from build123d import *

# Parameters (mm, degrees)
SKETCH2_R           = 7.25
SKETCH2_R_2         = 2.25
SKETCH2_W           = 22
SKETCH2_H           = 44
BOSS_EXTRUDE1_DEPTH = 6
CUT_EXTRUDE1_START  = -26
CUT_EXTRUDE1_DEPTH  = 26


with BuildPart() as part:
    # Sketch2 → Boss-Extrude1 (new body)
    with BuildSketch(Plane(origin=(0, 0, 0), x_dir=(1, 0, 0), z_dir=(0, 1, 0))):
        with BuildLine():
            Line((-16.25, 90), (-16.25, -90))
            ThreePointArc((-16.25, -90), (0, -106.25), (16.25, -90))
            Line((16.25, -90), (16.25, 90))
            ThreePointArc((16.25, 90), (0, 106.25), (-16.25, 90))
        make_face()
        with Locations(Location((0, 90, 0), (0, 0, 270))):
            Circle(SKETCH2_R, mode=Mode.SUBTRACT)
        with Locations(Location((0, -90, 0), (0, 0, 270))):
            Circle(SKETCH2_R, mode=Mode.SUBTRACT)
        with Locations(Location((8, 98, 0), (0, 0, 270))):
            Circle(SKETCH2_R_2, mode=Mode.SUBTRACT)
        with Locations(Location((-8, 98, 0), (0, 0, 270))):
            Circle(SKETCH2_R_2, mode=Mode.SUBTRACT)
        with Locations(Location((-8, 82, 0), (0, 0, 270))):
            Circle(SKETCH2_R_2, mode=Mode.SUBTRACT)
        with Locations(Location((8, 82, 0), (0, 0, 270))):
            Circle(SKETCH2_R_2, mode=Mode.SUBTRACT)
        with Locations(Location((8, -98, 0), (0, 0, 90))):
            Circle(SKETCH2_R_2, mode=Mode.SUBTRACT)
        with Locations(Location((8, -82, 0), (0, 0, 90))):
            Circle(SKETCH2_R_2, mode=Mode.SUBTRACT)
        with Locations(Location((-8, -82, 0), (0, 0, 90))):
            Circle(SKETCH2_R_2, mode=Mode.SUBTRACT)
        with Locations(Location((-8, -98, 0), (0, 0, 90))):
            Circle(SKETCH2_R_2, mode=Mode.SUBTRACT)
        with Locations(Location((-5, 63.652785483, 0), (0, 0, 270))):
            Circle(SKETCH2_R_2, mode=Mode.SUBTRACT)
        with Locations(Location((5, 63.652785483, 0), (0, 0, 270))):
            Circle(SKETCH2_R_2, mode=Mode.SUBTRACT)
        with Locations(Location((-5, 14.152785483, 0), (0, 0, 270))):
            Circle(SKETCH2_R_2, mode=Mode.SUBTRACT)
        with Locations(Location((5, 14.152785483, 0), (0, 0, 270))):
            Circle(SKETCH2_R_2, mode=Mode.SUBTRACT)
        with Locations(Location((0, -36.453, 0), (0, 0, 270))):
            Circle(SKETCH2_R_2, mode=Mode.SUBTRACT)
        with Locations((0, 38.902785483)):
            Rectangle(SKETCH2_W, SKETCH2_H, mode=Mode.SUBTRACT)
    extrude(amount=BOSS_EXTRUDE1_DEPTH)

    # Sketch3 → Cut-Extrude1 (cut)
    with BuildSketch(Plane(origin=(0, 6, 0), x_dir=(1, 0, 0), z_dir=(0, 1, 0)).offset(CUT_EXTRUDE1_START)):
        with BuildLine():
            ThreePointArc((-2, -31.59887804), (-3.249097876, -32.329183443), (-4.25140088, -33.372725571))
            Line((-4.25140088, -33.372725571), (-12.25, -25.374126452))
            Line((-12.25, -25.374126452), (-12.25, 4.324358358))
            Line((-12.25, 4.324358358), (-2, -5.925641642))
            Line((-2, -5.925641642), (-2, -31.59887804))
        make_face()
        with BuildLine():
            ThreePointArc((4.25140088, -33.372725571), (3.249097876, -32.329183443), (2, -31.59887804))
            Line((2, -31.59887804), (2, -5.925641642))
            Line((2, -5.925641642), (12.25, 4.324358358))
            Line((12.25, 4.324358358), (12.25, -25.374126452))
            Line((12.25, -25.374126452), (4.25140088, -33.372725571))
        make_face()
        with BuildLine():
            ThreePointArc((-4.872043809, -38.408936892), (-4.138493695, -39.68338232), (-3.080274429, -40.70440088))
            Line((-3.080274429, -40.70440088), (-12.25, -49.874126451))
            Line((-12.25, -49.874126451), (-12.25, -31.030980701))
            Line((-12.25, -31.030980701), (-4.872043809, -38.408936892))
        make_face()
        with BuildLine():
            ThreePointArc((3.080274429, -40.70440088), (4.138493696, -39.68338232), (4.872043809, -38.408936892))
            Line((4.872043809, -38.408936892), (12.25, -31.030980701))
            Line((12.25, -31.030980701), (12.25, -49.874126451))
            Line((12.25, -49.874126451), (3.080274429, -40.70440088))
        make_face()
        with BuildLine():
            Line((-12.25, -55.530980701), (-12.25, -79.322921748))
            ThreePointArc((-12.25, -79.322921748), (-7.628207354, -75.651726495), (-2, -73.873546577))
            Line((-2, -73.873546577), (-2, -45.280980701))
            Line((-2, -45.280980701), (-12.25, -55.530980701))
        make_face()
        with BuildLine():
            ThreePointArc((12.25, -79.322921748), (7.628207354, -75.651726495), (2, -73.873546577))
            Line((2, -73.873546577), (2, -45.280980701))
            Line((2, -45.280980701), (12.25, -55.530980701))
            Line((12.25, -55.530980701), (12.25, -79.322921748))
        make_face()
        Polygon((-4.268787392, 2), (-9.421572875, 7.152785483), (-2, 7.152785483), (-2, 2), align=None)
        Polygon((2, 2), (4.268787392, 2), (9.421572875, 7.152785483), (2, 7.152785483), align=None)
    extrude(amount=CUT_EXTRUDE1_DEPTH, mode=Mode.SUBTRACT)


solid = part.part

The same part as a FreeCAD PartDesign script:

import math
import FreeCAD as App
import Part
import Sketcher

V = App.Vector
Q = App.Units.Quantity


def add_polygon(sketch, points):
    """Adds a closed chain of lines whose ends are joined by coincident constraints."""
    first, n = sketch.GeometryCount, len(points)
    for a, b in zip(points, points[1:] + points[:1]):
        sketch.addGeometry(Part.LineSegment(App.Vector(*a, 0), App.Vector(*b, 0)), False)
    for i in range(n):
        sketch.addConstraint(Sketcher.Constraint("Coincident", first + i, 2, first + (i + 1) % n, 1))

doc = App.newDocument("Part")
params = doc.addObject("Spreadsheet::Sheet", "Params")
for row, (alias, value) in enumerate([
    ("sketch1_diameter", "4.5 mm"),
    ("sketch1_diameter2", "14.5 mm"),
    ("sketch1_width", "22 mm"),
    ("sketch1_height", "180 mm"),
    ("sketch1_height2", "44 mm"),
    ("pad1_length", "6 mm"),
    ("sketch2_radius", "5.25 mm"),
    ("sketch2_radius2", "16.25 mm"),
    ("pocket1_length", "26 mm"),
], start=1):
    params.set(f"A{row}", alias)
    params.set(f"B{row}", "=" + value)
    params.setAlias(f"B{row}", alias)

body = doc.addObject("PartDesign::Body", "Body")

# Sketch on XZ plane
sketch1 = body.newObject("Sketcher::SketchObject", "Sketch")
sketch1.AttachmentSupport = (doc.getObject("XZ_Plane"), [""])
sketch1.MapMode = "FlatFace"
sketch1.addGeometry(Part.LineSegment(V(-16.2, -90, 0), V(-16.2, 90, 0)), False)  # 0
sketch1.addGeometry(Part.ArcOfCircle(Part.Circle(V(0, 90, 0), V(0, 0, 1), 16.2), math.radians(0), math.radians(180)), False)  # 1
sketch1.addGeometry(Part.LineSegment(V(16.2, 90, 0), V(16.2, -90, 0)), False)  # 2
sketch1.addGeometry(Part.ArcOfCircle(Part.Circle(V(0, -90, 0), V(0, 0, 1), 16.2), math.radians(180), math.radians(360)), False)  # 3
sketch1.addGeometry(Part.Circle(V(-8, 98, 0), V(0, 0, 1), 2.2), False)  # 4
sketch1.addGeometry(Part.Circle(V(-8, 82, 0), V(0, 0, 1), 2.2), False)  # 5
sketch1.addGeometry(Part.Circle(V(0, 90, 0), V(0, 0, 1), 7.2), False)  # 6
sketch1.addGeometry(Part.Circle(V(8, 98, 0), V(0, 0, 1), 2.2), False)  # 7
sketch1.addGeometry(Part.Circle(V(8, 82, 0), V(0, 0, 1), 2.2), False)  # 8
sketch1.addGeometry(Part.Circle(V(0, 36.5, 0), V(0, 0, 1), 2.2), False)  # 9
sketch1.addGeometry(Part.Circle(V(-5, -14.2, 0), V(0, 0, 1), 2.2), False)  # 10
sketch1.addGeometry(Part.Circle(V(-8, -82, 0), V(0, 0, 1), 2.2), False)  # 11
sketch1.addGeometry(Part.Circle(V(-8, -98, 0), V(0, 0, 1), 2.2), False)  # 12
sketch1.addGeometry(Part.Circle(V(-5, -63.7, 0), V(0, 0, 1), 2.2), False)  # 13
sketch1.addGeometry(Part.Circle(V(5, -14.2, 0), V(0, 0, 1), 2.2), False)  # 14
add_polygon(sketch1, [(11, -16.9), (-11, -16.9), (-11, -60.9), (11, -60.9)])  # lines 15-18
sketch1.addGeometry(Part.Circle(V(5, -63.7, 0), V(0, 0, 1), 2.2), False)  # 19
sketch1.addGeometry(Part.Circle(V(0, -90, 0), V(0, 0, 1), 7.2), False)  # 20
sketch1.addGeometry(Part.Circle(V(8, -82, 0), V(0, 0, 1), 2.2), False)  # 21
sketch1.addGeometry(Part.Circle(V(8, -98, 0), V(0, 0, 1), 2.2), False)  # 22
sketch1.addConstraint(Sketcher.Constraint("Tangent", 0, 2, 1, 2))
sketch1.addConstraint(Sketcher.Constraint("Tangent", 1, 1, 2, 1))
sketch1.addConstraint(Sketcher.Constraint("Tangent", 2, 2, 3, 2))
sketch1.addConstraint(Sketcher.Constraint("Tangent", 3, 1, 0, 1))
sketch1.addConstraint(Sketcher.Constraint("Vertical", 0))
sketch1.addConstraint(Sketcher.Constraint("Vertical", 2))
sketch1.addConstraint(Sketcher.Constraint("Horizontal", 15))
sketch1.addConstraint(Sketcher.Constraint("Vertical", 16))
sketch1.addConstraint(Sketcher.Constraint("Horizontal", 17))
sketch1.addConstraint(Sketcher.Constraint("Vertical", 18))
sketch1.addConstraint(Sketcher.Constraint("Coincident", 6, 3, 1, 3))
sketch1.addConstraint(Sketcher.Constraint("Coincident", 20, 3, 3, 3))
sketch1.addConstraint(Sketcher.Constraint("Equal", 4, 5))
sketch1.addConstraint(Sketcher.Constraint("Equal", 5, 7))
sketch1.addConstraint(Sketcher.Constraint("Equal", 7, 8))
sketch1.addConstraint(Sketcher.Constraint("Equal", 8, 9))
sketch1.addConstraint(Sketcher.Constraint("Equal", 9, 10))
sketch1.addConstraint(Sketcher.Constraint("Equal", 10, 11))
sketch1.addConstraint(Sketcher.Constraint("Equal", 11, 12))
sketch1.addConstraint(Sketcher.Constraint("Equal", 12, 13))
sketch1.addConstraint(Sketcher.Constraint("Equal", 13, 14))
sketch1.addConstraint(Sketcher.Constraint("Equal", 14, 19))
sketch1.addConstraint(Sketcher.Constraint("Equal", 6, 20))
sketch1.addConstraint(Sketcher.Constraint("Equal", 19, 21))
sketch1.addConstraint(Sketcher.Constraint("Equal", 21, 22))
sketch1.addConstraint(Sketcher.Constraint("Symmetric", 1, 3, 3, 3, -1, 1))
sketch1.addConstraint(Sketcher.Constraint("Symmetric", 8, 3, 11, 3, -1, 1))
sketch1.addConstraint(Sketcher.Constraint("Symmetric", 7, 3, 12, 3, -1, 1))
sketch1.addConstraint(Sketcher.Constraint("Symmetric", 5, 3, 21, 3, -1, 1))
sketch1.addConstraint(Sketcher.Constraint("Symmetric", 4, 3, 22, 3, -1, 1))
sketch1.addConstraint(Sketcher.Constraint("Symmetric", 4, 3, 7, 3, -2))
sketch1.addConstraint(Sketcher.Constraint("Symmetric", 5, 3, 8, 3, -2))
sketch1.addConstraint(Sketcher.Constraint("Symmetric", 10, 3, 14, 3, -2))
sketch1.addConstraint(Sketcher.Constraint("Symmetric", 13, 3, 19, 3, -2))
sketch1.addConstraint(Sketcher.Constraint("PointOnObject", 9, 3, -2))
sketch1.addConstraint(Sketcher.Constraint("Vertical", 4, 3, 5, 3))
sketch1.addConstraint(Sketcher.Constraint("Vertical", 10, 3, 13, 3))
sketch1.addConstraint(Sketcher.Constraint("Diameter", 4, Q("4.5 mm")))
sketch1.addConstraint(Sketcher.Constraint("Diameter", 6, Q("14.5 mm")))
sketch1.addConstraint(Sketcher.Constraint("DistanceX", 15, 2, 15, 1, Q("22 mm")))
sketch1.addConstraint(Sketcher.Constraint("DistanceY", 0, 1, 0, 2, Q("180 mm")))
sketch1.addConstraint(Sketcher.Constraint("DistanceY", 16, 2, 16, 1, Q("44 mm")))
sketch1.addConstraint(Sketcher.Constraint("Radius", 1, Q("16.25 mm")))
sketch1.addConstraint(Sketcher.Constraint("DistanceX", 4, 3, -1, 1, Q("8 mm")))
sketch1.addConstraint(Sketcher.Constraint("DistanceY", -1, 1, 4, 3, Q("98 mm")))
sketch1.addConstraint(Sketcher.Constraint("DistanceY", -1, 1, 5, 3, Q("82 mm")))
sketch1.addConstraint(Sketcher.Constraint("DistanceX", 10, 3, -1, 1, Q("5 mm")))
sketch1.addConstraint(Sketcher.Constraint("DistanceX", 15, 2, -1, 1, Q("11 mm")))
sketch1.addConstraint(Sketcher.Constraint("DistanceY", 13, 3, 10, 3, Q("49.5 mm")))
sketch1.addConstraint(Sketcher.Constraint("DistanceY", 15, 2, 10, 3, Q("2.75 mm")))
sketch1.addConstraint(Sketcher.Constraint("DistanceY", -1, 1, 9, 3, Q("36.453 mm")))
sketch1.addConstraint(Sketcher.Constraint("DistanceY", 10, 3, -1, 1, Q("14.152785 mm")))
sketch1.setExpression("Constraints[41]", "Params.sketch1_diameter")
sketch1.setExpression("Constraints[42]", "Params.sketch1_diameter2")
sketch1.setExpression("Constraints[43]", "Params.sketch1_width")
sketch1.setExpression("Constraints[44]", "Params.sketch1_height")
sketch1.setExpression("Constraints[45]", "Params.sketch1_height2")
pad1 = body.newObject("PartDesign::Pad", "Pad")
pad1.Profile = sketch1
pad1.setExpression("Length", "Params.pad1_length")
pad1.Reversed = True

# Sketch on XZ plane
sketch2 = body.newObject("Sketcher::SketchObject", "Sketch001")
sketch2.AttachmentSupport = (doc.getObject("XZ_Plane"), [""])
sketch2.MapMode = "FlatFace"
sketch2.AttachmentOffset = App.Placement(V(0, 0, 20), App.Rotation())
sketch2.addGeometry(Part.ArcOfCircle(Part.Circle(V(0, 36.5, 0), V(0, 0, 1), 5.2), math.radians(-144), math.radians(-112)), False)  # 0
sketch2.addGeometry(Part.LineSegment(V(-2, 31.6, 0), V(-2, 5.9, 0)), False)  # 1
sketch2.addGeometry(Part.LineSegment(V(-2, 5.9, 0), V(-12.2, -4.3, 0)), False)  # 2
sketch2.addGeometry(Part.LineSegment(V(-12.2, -4.3, 0), V(-12.2, 25.4, 0)), False)  # 3
sketch2.addGeometry(Part.LineSegment(V(-12.2, 25.4, 0), V(-4.3, 33.4, 0)), False)  # 4
sketch2.addGeometry(Part.ArcOfCircle(Part.Circle(V(0, 36.5, 0), V(0, 0, 1), 5.2), math.radians(-68), math.radians(-36)), False)  # 5
sketch2.addGeometry(Part.LineSegment(V(4.3, 33.4, 0), V(12.2, 25.4, 0)), False)  # 6
sketch2.addGeometry(Part.LineSegment(V(12.2, 25.4, 0), V(12.2, -4.3, 0)), False)  # 7
sketch2.addGeometry(Part.LineSegment(V(12.2, -4.3, 0), V(2, 5.9, 0)), False)  # 8
sketch2.addGeometry(Part.LineSegment(V(2, 5.9, 0), V(2, 31.6, 0)), False)  # 9
sketch2.addGeometry(Part.ArcOfCircle(Part.Circle(V(0, 36.5, 0), V(0, 0, 1), 5.3), math.radians(126), math.radians(158)), False)  # 10
sketch2.addGeometry(Part.LineSegment(V(-4.9, 38.4, 0), V(-12.2, 31, 0)), False)  # 11
sketch2.addGeometry(Part.LineSegment(V(-12.2, 31, 0), V(-12.2, 49.9, 0)), False)  # 12
sketch2.addGeometry(Part.LineSegment(V(-12.2, 49.9, 0), V(-3.1, 40.7, 0)), False)  # 13
sketch2.addGeometry(Part.ArcOfCircle(Part.Circle(V(0, 36.5, 0), V(0, 0, 1), 5.2), math.radians(22), math.radians(54)), False)  # 14
sketch2.addGeometry(Part.LineSegment(V(3.1, 40.7, 0), V(12.2, 49.9, 0)), False)  # 15
sketch2.addGeometry(Part.LineSegment(V(12.2, 49.9, 0), V(12.2, 31, 0)), False)  # 16
sketch2.addGeometry(Part.LineSegment(V(12.2, 31, 0), V(4.9, 38.4, 0)), False)  # 17
sketch2.addGeometry(Part.LineSegment(V(-12.2, 55.5, 0), V(-12.2, 79.3, 0)), False)  # 18
sketch2.addGeometry(Part.ArcOfCircle(Part.Circle(V(0, 90, 0), V(0, 0, 1), 16.2), math.radians(-139), math.radians(-97)), False)  # 19
sketch2.addGeometry(Part.LineSegment(V(-2, 73.9, 0), V(-2, 45.3, 0)), False)  # 20
sketch2.addGeometry(Part.LineSegment(V(-2, 45.3, 0), V(-12.2, 55.5, 0)), False)  # 21
sketch2.addGeometry(Part.ArcOfCircle(Part.Circle(V(0, 90, 0), V(0, 0, 1), 16.2), math.radians(-83), math.radians(-41)), False)  # 22
sketch2.addGeometry(Part.LineSegment(V(12.2, 79.3, 0), V(12.2, 55.5, 0)), False)  # 23
sketch2.addGeometry(Part.LineSegment(V(12.2, 55.5, 0), V(2, 45.3, 0)), False)  # 24
sketch2.addGeometry(Part.LineSegment(V(2, 45.3, 0), V(2, 73.9, 0)), False)  # 25
add_polygon(sketch2, [(-9.4, -7.2), (-4.3, -2), (-2, -2), (-2, -7.2)])  # lines 26-29
add_polygon(sketch2, [(2, -2), (4.3, -2), (9.4, -7.2), (2, -7.2)])  # lines 30-33
sketch2.addConstraint(Sketcher.Constraint("Coincident", 0, 2, 1, 1))
sketch2.addConstraint(Sketcher.Constraint("Coincident", 1, 2, 2, 1))
sketch2.addConstraint(Sketcher.Constraint("Coincident", 2, 2, 3, 1))
sketch2.addConstraint(Sketcher.Constraint("Coincident", 3, 2, 4, 1))
sketch2.addConstraint(Sketcher.Constraint("Coincident", 4, 2, 0, 1))
sketch2.addConstraint(Sketcher.Constraint("Coincident", 5, 2, 6, 1))
sketch2.addConstraint(Sketcher.Constraint("Coincident", 6, 2, 7, 1))
sketch2.addConstraint(Sketcher.Constraint("Coincident", 7, 2, 8, 1))
sketch2.addConstraint(Sketcher.Constraint("Coincident", 8, 2, 9, 1))
sketch2.addConstraint(Sketcher.Constraint("Coincident", 9, 2, 5, 1))
sketch2.addConstraint(Sketcher.Constraint("Coincident", 10, 2, 11, 1))
sketch2.addConstraint(Sketcher.Constraint("Coincident", 11, 2, 12, 1))
sketch2.addConstraint(Sketcher.Constraint("Coincident", 12, 2, 13, 1))
sketch2.addConstraint(Sketcher.Constraint("Coincident", 13, 2, 10, 1))
sketch2.addConstraint(Sketcher.Constraint("Coincident", 14, 2, 15, 1))
sketch2.addConstraint(Sketcher.Constraint("Coincident", 15, 2, 16, 1))
sketch2.addConstraint(Sketcher.Constraint("Coincident", 16, 2, 17, 1))
sketch2.addConstraint(Sketcher.Constraint("Coincident", 17, 2, 14, 1))
sketch2.addConstraint(Sketcher.Constraint("Coincident", 18, 2, 19, 1))
sketch2.addConstraint(Sketcher.Constraint("Coincident", 19, 2, 20, 1))
sketch2.addConstraint(Sketcher.Constraint("Coincident", 20, 2, 21, 1))
sketch2.addConstraint(Sketcher.Constraint("Coincident", 21, 2, 18, 1))
sketch2.addConstraint(Sketcher.Constraint("Coincident", 22, 2, 23, 1))
sketch2.addConstraint(Sketcher.Constraint("Coincident", 23, 2, 24, 1))
sketch2.addConstraint(Sketcher.Constraint("Coincident", 24, 2, 25, 1))
sketch2.addConstraint(Sketcher.Constraint("Coincident", 25, 2, 22, 1))
sketch2.addConstraint(Sketcher.Constraint("Vertical", 1))
sketch2.addConstraint(Sketcher.Constraint("Vertical", 3))
sketch2.addConstraint(Sketcher.Constraint("Vertical", 7))
sketch2.addConstraint(Sketcher.Constraint("Vertical", 9))
sketch2.addConstraint(Sketcher.Constraint("Vertical", 12))
sketch2.addConstraint(Sketcher.Constraint("Vertical", 16))
sketch2.addConstraint(Sketcher.Constraint("Vertical", 18))
sketch2.addConstraint(Sketcher.Constraint("Vertical", 20))
sketch2.addConstraint(Sketcher.Constraint("Vertical", 23))
sketch2.addConstraint(Sketcher.Constraint("Vertical", 25))
sketch2.addConstraint(Sketcher.Constraint("Horizontal", 27))
sketch2.addConstraint(Sketcher.Constraint("Vertical", 28))
sketch2.addConstraint(Sketcher.Constraint("Horizontal", 29))
sketch2.addConstraint(Sketcher.Constraint("Horizontal", 30))
sketch2.addConstraint(Sketcher.Constraint("Horizontal", 32))
sketch2.addConstraint(Sketcher.Constraint("Vertical", 33))
sketch2.addConstraint(Sketcher.Constraint("Coincident", 5, 3, 0, 3))
sketch2.addConstraint(Sketcher.Constraint("Coincident", 10, 3, 0, 3))
sketch2.addConstraint(Sketcher.Constraint("Coincident", 14, 3, 0, 3))
sketch2.addConstraint(Sketcher.Constraint("Coincident", 22, 3, 19, 3))
sketch2.addConstraint(Sketcher.Constraint("Equal", 0, 5))
sketch2.addConstraint(Sketcher.Constraint("Equal", 5, 10))
sketch2.addConstraint(Sketcher.Constraint("Equal", 10, 14))
sketch2.addConstraint(Sketcher.Constraint("Equal", 19, 22))
sketch2.addConstraint(Sketcher.Constraint("Symmetric", 4, 2, 5, 2, -2))
sketch2.addConstraint(Sketcher.Constraint("Symmetric", 3, 2, 6, 2, -2))
sketch2.addConstraint(Sketcher.Constraint("Symmetric", 1, 2, 8, 2, -2))
sketch2.addConstraint(Sketcher.Constraint("Symmetric", 12, 2, 15, 2, -2))
sketch2.addConstraint(Sketcher.Constraint("Symmetric", 18, 2, 22, 2, -2))
sketch2.addConstraint(Sketcher.Constraint("Symmetric", 20, 2, 24, 2, -2))
sketch2.addConstraint(Sketcher.Constraint("Symmetric", 26, 2, 30, 2, -2))
sketch2.addConstraint(Sketcher.Constraint("Symmetric", 29, 2, 31, 2, -2))
sketch2.addConstraint(Sketcher.Constraint("Parallel", 2, 4))
sketch2.addConstraint(Sketcher.Constraint("Perpendicular", 4, 6))
sketch2.addConstraint(Sketcher.Constraint("Parallel", 6, 8))
sketch2.addConstraint(Sketcher.Constraint("Perpendicular", 8, 11))
sketch2.addConstraint(Sketcher.Constraint("Perpendicular", 11, 13))
sketch2.addConstraint(Sketcher.Constraint("Perpendicular", 13, 15))
sketch2.addConstraint(Sketcher.Constraint("Perpendicular", 15, 17))
sketch2.addConstraint(Sketcher.Constraint("Parallel", 17, 21))
sketch2.addConstraint(Sketcher.Constraint("Perpendicular", 21, 24))
sketch2.addConstraint(Sketcher.Constraint("Parallel", 24, 26))
sketch2.addConstraint(Sketcher.Constraint("Horizontal", 11, 2, 16, 2))
sketch2.addConstraint(Sketcher.Constraint("Vertical", 3, 2, 11, 2))
sketch2.addConstraint(Sketcher.Constraint("Vertical", 12, 2, 18, 2))
sketch2.addConstraint(Sketcher.Constraint("Vertical", 1, 2, 19, 2))
sketch2.addConstraint(Sketcher.Constraint("Vertical", 20, 2, 27, 2))
sketch2.addConstraint(Sketcher.Constraint("Vertical", 25, 2, 32, 2))
sketch2.addConstraint(Sketcher.Constraint("Radius", 0, Q("5.25 mm")))
sketch2.addConstraint(Sketcher.Constraint("Radius", 19, Q("16.25 mm")))
sketch2.addConstraint(Sketcher.Constraint("DistanceY", -1, 1, 19, 3, Q("90 mm")))
sketch2.addConstraint(Sketcher.Constraint("DistanceX", 0, 2, -1, 1, Q("2 mm")))
sketch2.addConstraint(Sketcher.Constraint("DistanceY", 26, 2, -1, 1, Q("2 mm")))
sketch2.addConstraint(Sketcher.Constraint("DistanceX", 2, 2, 7, 2, Q("24.5 mm")))
sketch2.addConstraint(Sketcher.Constraint("DistanceY", -1, 1, 0, 3, Q("36.453 mm")))
sketch2.addConstraint(Sketcher.Constraint("DistanceY", 18, 1, 18, 2, Q("23.791941 mm")))
sketch2.addConstraint(Sketcher.Constraint("DistanceX", 4, 2, -1, 1, Q("4.251401 mm")))
sketch2.addConstraint(Sketcher.Constraint("DistanceY", -1, 1, 13, 2, Q("40.704401 mm")))
sketch2.addConstraint(Sketcher.Constraint("Distance", 26, Q("7.287139 mm")))
sketch2.addConstraint(Sketcher.Constraint("DistanceX", 27, 1, 27, 2, Q("2.268787 mm")))
sketch2.addConstraint(Sketcher.Constraint("DistanceY", 1, 2, 1, 1, Q("25.673236 mm")))
sketch2.addConstraint(Sketcher.Constraint("DistanceY", 12, 1, 12, 2, Q("18.843146 mm")))
sketch2.setExpression("Constraints[82]", "Params.sketch2_radius")
sketch2.setExpression("Constraints[83]", "Params.sketch2_radius2")
pocket1 = body.newObject("PartDesign::Pocket", "Pocket")
pocket1.Profile = sketch2
pocket1.setExpression("Length", "Params.pocket1_length")

doc.recompute()
